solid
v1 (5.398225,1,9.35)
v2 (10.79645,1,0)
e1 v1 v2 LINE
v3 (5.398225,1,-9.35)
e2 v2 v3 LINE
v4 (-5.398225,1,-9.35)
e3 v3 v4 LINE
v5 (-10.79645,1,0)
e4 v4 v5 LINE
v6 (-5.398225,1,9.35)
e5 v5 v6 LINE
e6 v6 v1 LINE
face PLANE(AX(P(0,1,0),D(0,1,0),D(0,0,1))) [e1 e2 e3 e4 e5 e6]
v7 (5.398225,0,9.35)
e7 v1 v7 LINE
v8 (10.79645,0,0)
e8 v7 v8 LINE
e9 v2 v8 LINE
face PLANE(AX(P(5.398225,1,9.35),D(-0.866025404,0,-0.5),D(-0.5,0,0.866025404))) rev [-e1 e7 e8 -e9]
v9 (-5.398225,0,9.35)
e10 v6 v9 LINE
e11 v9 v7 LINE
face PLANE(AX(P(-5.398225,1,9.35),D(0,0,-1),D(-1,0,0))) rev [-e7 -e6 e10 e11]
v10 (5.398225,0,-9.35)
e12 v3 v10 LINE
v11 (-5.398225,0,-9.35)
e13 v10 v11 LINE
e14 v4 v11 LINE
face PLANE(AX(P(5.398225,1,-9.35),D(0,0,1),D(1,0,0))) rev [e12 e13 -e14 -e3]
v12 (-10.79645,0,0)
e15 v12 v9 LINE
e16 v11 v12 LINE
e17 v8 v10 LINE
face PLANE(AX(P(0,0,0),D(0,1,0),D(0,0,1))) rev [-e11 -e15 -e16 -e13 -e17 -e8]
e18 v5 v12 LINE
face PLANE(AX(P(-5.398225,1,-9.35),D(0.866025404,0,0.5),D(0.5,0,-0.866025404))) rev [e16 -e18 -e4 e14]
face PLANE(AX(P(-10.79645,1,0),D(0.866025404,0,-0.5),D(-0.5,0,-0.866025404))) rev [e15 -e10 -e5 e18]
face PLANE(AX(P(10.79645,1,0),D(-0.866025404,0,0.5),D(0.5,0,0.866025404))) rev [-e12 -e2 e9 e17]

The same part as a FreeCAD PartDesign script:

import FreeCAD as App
import Part
import Sketcher
Q = App.Units.Quantity


def add_polygon(sketch, points):
    """Adds a closed chain of lines whose ends are joined by coincident constraints."""
    first, n = sketch.GeometryCount, len(points)
    for a, b in zip(points, points[1:] + points[:1]):
        sketch.addGeometry(Part.LineSegment(App.Vector(*a, 0), App.Vector(*b, 0)), False)
    for i in range(n):
        sketch.addConstraint(Sketcher.Constraint("Coincident", first + i, 2, first + (i + 1) % n, 1))

doc = App.newDocument("Part")
body = doc.addObject("PartDesign::Body", "Body")

# Sketch on XZ plane
sketch1 = doc.addObject("Sketcher::SketchObject", "Sketch")
body.addObject(sketch1)
sketch1.AttachmentSupport = (doc.XZ_Plane, [""])
sketch1.MapMode = "FlatFace"
add_polygon(sketch1, [(-5.398225, 9.35), (5.398225, 9.35), (10.79645, 0), (5.398225, -9.35), (-5.398225, -9.35), (-10.79645, 0)])  # lines 0-5
sketch1.addConstraint([
    Sketcher.Constraint("Horizontal", 0),
    Sketcher.Constraint("Horizontal", 3),
    Sketcher.Constraint("Symmetric", 0, 2, 3, 2, -1, 1),
    Sketcher.Constraint("Symmetric", 1, 2, 4, 2, -1, 1),
    Sketcher.Constraint("PointOnObject", 1, 2, -1),
    Sketcher.Constraint("Parallel", 2, 5),
    Sketcher.Constraint("Vertical", 0, 2, 2, 2),
    Sketcher.Constraint("Angle", 1, Q("-60 deg")),
    Sketcher.Constraint("DistanceY", 2, 2, 0, 2, 18.7),
    Sketcher.Constraint("DistanceX", 0, 1, 0, 2, 10.79645),
])
pad1 = doc.addObject("PartDesign::Pad", "Pad")
body.addObject(pad1)
pad1.Profile = sketch1
pad1.Length = 1
pad1.Reversed = True

doc.recompute()
